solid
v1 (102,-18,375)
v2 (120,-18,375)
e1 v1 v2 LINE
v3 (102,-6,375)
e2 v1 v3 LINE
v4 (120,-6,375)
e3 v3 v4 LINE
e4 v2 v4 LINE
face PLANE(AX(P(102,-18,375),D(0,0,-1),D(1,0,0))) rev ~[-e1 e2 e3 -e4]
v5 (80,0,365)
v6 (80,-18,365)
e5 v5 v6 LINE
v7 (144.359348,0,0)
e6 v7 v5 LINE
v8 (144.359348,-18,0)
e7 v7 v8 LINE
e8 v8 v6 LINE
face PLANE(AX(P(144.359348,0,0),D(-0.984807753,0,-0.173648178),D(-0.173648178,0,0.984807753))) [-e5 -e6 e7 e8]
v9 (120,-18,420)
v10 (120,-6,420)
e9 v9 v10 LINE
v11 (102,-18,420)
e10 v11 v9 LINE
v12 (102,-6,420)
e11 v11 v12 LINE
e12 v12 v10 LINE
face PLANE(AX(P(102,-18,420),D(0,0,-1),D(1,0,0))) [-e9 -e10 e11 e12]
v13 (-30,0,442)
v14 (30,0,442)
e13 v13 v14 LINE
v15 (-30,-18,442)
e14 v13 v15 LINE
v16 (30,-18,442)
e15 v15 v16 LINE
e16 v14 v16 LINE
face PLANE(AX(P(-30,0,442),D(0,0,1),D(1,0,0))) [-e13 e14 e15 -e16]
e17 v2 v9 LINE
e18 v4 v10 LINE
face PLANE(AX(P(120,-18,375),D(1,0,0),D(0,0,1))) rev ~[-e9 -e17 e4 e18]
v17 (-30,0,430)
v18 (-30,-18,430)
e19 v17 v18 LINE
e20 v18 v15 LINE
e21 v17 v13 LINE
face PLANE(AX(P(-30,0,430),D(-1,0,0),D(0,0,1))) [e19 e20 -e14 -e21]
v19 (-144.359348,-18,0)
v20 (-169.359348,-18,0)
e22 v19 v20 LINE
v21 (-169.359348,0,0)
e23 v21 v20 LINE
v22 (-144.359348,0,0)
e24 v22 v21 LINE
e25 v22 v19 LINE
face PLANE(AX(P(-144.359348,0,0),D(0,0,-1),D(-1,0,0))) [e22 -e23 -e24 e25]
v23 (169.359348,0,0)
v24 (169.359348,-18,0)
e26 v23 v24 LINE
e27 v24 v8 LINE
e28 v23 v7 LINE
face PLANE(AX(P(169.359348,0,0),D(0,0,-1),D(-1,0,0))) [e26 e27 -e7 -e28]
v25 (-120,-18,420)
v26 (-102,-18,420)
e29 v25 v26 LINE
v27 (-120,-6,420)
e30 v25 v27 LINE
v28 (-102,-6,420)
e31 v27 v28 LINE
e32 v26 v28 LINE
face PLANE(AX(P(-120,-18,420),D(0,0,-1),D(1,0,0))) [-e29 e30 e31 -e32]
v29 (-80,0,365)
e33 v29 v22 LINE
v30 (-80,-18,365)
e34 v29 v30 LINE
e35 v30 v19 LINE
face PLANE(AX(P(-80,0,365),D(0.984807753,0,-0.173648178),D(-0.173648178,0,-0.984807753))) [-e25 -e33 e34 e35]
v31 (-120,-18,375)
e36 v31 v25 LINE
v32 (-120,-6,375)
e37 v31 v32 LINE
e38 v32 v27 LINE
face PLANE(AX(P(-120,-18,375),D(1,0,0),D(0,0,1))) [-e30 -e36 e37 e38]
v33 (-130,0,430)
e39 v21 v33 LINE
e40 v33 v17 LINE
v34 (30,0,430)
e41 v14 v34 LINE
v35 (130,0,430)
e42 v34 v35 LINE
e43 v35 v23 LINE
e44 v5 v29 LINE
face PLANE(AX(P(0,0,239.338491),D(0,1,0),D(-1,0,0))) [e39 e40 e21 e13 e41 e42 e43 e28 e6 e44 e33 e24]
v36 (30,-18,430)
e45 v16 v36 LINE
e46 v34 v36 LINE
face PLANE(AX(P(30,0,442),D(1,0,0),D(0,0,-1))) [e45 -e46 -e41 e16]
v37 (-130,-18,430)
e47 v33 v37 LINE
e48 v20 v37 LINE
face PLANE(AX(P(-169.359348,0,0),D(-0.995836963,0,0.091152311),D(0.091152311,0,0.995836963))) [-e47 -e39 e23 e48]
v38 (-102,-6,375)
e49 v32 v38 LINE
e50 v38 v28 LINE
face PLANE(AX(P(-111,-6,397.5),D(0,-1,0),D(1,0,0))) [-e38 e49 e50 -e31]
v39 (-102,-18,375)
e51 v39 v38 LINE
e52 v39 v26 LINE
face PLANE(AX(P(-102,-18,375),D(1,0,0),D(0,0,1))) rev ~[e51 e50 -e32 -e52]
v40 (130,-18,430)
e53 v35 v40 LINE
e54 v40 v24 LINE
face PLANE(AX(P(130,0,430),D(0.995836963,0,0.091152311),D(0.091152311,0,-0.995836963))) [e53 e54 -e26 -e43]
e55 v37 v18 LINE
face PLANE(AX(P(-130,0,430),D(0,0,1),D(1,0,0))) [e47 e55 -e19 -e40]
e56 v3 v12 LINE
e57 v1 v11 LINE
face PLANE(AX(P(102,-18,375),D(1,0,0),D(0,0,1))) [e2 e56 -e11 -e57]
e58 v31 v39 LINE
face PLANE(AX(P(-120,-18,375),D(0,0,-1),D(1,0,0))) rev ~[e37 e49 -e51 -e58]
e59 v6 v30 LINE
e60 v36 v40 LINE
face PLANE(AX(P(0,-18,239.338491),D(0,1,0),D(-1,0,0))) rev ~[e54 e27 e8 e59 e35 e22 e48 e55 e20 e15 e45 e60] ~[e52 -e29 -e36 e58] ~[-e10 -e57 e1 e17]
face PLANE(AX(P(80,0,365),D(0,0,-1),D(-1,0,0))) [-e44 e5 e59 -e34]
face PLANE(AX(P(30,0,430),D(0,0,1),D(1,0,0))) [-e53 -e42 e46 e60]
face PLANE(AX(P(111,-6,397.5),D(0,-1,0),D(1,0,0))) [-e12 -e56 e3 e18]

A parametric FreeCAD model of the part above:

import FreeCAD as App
import Part
import Sketcher
Q = App.Units.Quantity


def add_polygon(sketch, points):
    """Adds a closed chain of lines whose ends are joined by coincident constraints."""
    first, n = sketch.GeometryCount, len(points)
    for a, b in zip(points, points[1:] + points[:1]):
        sketch.addGeometry(Part.LineSegment(App.Vector(*a, 0), App.Vector(*b, 0)), False)
    for i in range(n):
        sketch.addConstraint(Sketcher.Constraint("Coincident", first + i, 2, first + (i + 1) % n, 1))

doc = App.newDocument("Part")
params = doc.addObject("Spreadsheet::Sheet", "Params")
for row, (alias, value) in enumerate([
    ("sketch1_width", "25 mm"),
    ("sketch1_width2", "160 mm"),
    ("sketch1_width3", "100 mm"),
    ("sketch1_width4", "60 mm"),
    ("sketch1_height", "12 mm"),
    ("pad1_length", "18 mm"),
    ("sketch2_width", "18 mm"),
    ("sketch2_height", "45 mm"),
    ("pocket1_length", "12 mm"),
], start=1):
    params.set(f"A{row}", alias)
    params.set(f"B{row}", "=" + value)
    params.setAlias(f"B{row}", alias)

body = doc.addObject("PartDesign::Body", "Body")

sketch1 = body.newObject("Sketcher::SketchObject", "Sketch")
sketch1.AttachmentSupport = (doc.getObject("XZ_Plane"), [""])
sketch1.MapMode = "FlatFace"
add_polygon(sketch1, [(-130, 430), (-169, 0), (-144, 0), (-80, 365), (80, 365), (144, 0), (169, 0), (130, 430), (30, 430), (30, 442), (-30, 442), (-30, 430)])
sketch1.addConstraint(Sketcher.Constraint("Horizontal", 1))
sketch1.addConstraint(Sketcher.Constraint("Horizontal", 3))
sketch1.addConstraint(Sketcher.Constraint("Horizontal", 5))
sketch1.addConstraint(Sketcher.Constraint("Horizontal", 7))
sketch1.addConstraint(Sketcher.Constraint("Vertical", 8))
sketch1.addConstraint(Sketcher.Constraint("Horizontal", 9))
sketch1.addConstraint(Sketcher.Constraint("Vertical", 10))
sketch1.addConstraint(Sketcher.Constraint("Horizontal", 11))
sketch1.addConstraint(Sketcher.Constraint("Symmetric", 1, 2, 4, 2, -1, 1))
sketch1.addConstraint(Sketcher.Constraint("Symmetric", 0, 2, 5, 2, -2))
sketch1.addConstraint(Sketcher.Constraint("Symmetric", 7, 2, 10, 2, -2))
sketch1.addConstraint(Sketcher.Constraint("Equal", 7, 11))
sketch1.addConstraint(Sketcher.Constraint("Equal", 2, 4))
sketch1.addConstraint(Sketcher.Constraint("DistanceX", 1, 1, 1, 2, Q("25 mm")))
sketch1.addConstraint(Sketcher.Constraint("DistanceX", 3, 1, 3, 2, Q("160 mm")))
sketch1.addConstraint(Sketcher.Constraint("DistanceX", 7, 2, 7, 1, Q("100 mm")))
sketch1.addConstraint(Sketcher.Constraint("DistanceX", 9, 2, 9, 1, Q("60 mm")))
sketch1.addConstraint(Sketcher.Constraint("DistanceY", 8, 1, 8, 2, Q("12 mm")))
sketch1.addConstraint(Sketcher.Constraint("Angle", 2, Q("80 deg")))
sketch1.addConstraint(Sketcher.Constraint("DistanceY", -1, 1, 2, 2, Q("365 mm")))
sketch1.addConstraint(Sketcher.Constraint("DistanceY", -1, 1, 6, 2, Q("430 mm")))
sketch1.setExpression("Constraints[25]", "Params.sketch1_width")
sketch1.setExpression("Constraints[26]", "Params.sketch1_width2")
sketch1.setExpression("Constraints[27]", "Params.sketch1_width3")
sketch1.setExpression("Constraints[28]", "Params.sketch1_width4")
sketch1.setExpression("Constraints[29]", "Params.sketch1_height")
pad1 = body.newObject("PartDesign::Pad", "Pad")
pad1.Profile = sketch1
pad1.setExpression("Length", "Params.pad1_length")

sketch2 = body.newObject("Sketcher::SketchObject", "Sketch001")
sketch2.AttachmentSupport = (doc.getObject("XZ_Plane"), [""])
sketch2.MapMode = "FlatFace"
sketch2.AttachmentOffset = App.Placement(App.Vector(0, 0, 18), App.Rotation())
add_polygon(sketch2, [(-120, 420), (-120, 375), (-102, 375), (-102, 420)])
add_polygon(sketch2, [(102, 420), (102, 375), (120, 375), (120, 420)])
sketch2.addConstraint(Sketcher.Constraint("Vertical", 0))
sketch2.addConstraint(Sketcher.Constraint("Horizontal", 1))
sketch2.addConstraint(Sketcher.Constraint("Vertical", 2))
sketch2.addConstraint(Sketcher.Constraint("Horizontal", 3))
sketch2.addConstraint(Sketcher.Constraint("Vertical", 4))
sketch2.addConstraint(Sketcher.Constraint("Horizontal", 5))
sketch2.addConstraint(Sketcher.Constraint("Vertical", 6))
sketch2.addConstraint(Sketcher.Constraint("Horizontal", 7))
sketch2.addConstraint(Sketcher.Constraint("Symmetric", 1, 2, 4, 2, -2))
sketch2.addConstraint(Sketcher.Constraint("Symmetric", 3, 2, 6, 2, -2))
sketch2.addConstraint(Sketcher.Constraint("DistanceX", 1, 1, 1, 2, Q("18 mm")))
sketch2.addConstraint(Sketcher.Constraint("DistanceY", 0, 2, 0, 1, Q("45 mm")))
sketch2.addConstraint(Sketcher.Constraint("DistanceX", 0, 2, -1, 1, Q("120 mm")))
sketch2.addConstraint(Sketcher.Constraint("DistanceY", -1, 1, 0, 2, Q("375 mm")))
sketch2.setExpression("Constraints[18]", "Params.sketch2_width")
sketch2.setExpression("Constraints[19]", "Params.sketch2_height")
pocket1 = body.newObject("PartDesign::Pocket", "Pocket")
pocket1.Profile = sketch2
pocket1.setExpression("Length", "Params.pocket1_length")

doc.recompute()
